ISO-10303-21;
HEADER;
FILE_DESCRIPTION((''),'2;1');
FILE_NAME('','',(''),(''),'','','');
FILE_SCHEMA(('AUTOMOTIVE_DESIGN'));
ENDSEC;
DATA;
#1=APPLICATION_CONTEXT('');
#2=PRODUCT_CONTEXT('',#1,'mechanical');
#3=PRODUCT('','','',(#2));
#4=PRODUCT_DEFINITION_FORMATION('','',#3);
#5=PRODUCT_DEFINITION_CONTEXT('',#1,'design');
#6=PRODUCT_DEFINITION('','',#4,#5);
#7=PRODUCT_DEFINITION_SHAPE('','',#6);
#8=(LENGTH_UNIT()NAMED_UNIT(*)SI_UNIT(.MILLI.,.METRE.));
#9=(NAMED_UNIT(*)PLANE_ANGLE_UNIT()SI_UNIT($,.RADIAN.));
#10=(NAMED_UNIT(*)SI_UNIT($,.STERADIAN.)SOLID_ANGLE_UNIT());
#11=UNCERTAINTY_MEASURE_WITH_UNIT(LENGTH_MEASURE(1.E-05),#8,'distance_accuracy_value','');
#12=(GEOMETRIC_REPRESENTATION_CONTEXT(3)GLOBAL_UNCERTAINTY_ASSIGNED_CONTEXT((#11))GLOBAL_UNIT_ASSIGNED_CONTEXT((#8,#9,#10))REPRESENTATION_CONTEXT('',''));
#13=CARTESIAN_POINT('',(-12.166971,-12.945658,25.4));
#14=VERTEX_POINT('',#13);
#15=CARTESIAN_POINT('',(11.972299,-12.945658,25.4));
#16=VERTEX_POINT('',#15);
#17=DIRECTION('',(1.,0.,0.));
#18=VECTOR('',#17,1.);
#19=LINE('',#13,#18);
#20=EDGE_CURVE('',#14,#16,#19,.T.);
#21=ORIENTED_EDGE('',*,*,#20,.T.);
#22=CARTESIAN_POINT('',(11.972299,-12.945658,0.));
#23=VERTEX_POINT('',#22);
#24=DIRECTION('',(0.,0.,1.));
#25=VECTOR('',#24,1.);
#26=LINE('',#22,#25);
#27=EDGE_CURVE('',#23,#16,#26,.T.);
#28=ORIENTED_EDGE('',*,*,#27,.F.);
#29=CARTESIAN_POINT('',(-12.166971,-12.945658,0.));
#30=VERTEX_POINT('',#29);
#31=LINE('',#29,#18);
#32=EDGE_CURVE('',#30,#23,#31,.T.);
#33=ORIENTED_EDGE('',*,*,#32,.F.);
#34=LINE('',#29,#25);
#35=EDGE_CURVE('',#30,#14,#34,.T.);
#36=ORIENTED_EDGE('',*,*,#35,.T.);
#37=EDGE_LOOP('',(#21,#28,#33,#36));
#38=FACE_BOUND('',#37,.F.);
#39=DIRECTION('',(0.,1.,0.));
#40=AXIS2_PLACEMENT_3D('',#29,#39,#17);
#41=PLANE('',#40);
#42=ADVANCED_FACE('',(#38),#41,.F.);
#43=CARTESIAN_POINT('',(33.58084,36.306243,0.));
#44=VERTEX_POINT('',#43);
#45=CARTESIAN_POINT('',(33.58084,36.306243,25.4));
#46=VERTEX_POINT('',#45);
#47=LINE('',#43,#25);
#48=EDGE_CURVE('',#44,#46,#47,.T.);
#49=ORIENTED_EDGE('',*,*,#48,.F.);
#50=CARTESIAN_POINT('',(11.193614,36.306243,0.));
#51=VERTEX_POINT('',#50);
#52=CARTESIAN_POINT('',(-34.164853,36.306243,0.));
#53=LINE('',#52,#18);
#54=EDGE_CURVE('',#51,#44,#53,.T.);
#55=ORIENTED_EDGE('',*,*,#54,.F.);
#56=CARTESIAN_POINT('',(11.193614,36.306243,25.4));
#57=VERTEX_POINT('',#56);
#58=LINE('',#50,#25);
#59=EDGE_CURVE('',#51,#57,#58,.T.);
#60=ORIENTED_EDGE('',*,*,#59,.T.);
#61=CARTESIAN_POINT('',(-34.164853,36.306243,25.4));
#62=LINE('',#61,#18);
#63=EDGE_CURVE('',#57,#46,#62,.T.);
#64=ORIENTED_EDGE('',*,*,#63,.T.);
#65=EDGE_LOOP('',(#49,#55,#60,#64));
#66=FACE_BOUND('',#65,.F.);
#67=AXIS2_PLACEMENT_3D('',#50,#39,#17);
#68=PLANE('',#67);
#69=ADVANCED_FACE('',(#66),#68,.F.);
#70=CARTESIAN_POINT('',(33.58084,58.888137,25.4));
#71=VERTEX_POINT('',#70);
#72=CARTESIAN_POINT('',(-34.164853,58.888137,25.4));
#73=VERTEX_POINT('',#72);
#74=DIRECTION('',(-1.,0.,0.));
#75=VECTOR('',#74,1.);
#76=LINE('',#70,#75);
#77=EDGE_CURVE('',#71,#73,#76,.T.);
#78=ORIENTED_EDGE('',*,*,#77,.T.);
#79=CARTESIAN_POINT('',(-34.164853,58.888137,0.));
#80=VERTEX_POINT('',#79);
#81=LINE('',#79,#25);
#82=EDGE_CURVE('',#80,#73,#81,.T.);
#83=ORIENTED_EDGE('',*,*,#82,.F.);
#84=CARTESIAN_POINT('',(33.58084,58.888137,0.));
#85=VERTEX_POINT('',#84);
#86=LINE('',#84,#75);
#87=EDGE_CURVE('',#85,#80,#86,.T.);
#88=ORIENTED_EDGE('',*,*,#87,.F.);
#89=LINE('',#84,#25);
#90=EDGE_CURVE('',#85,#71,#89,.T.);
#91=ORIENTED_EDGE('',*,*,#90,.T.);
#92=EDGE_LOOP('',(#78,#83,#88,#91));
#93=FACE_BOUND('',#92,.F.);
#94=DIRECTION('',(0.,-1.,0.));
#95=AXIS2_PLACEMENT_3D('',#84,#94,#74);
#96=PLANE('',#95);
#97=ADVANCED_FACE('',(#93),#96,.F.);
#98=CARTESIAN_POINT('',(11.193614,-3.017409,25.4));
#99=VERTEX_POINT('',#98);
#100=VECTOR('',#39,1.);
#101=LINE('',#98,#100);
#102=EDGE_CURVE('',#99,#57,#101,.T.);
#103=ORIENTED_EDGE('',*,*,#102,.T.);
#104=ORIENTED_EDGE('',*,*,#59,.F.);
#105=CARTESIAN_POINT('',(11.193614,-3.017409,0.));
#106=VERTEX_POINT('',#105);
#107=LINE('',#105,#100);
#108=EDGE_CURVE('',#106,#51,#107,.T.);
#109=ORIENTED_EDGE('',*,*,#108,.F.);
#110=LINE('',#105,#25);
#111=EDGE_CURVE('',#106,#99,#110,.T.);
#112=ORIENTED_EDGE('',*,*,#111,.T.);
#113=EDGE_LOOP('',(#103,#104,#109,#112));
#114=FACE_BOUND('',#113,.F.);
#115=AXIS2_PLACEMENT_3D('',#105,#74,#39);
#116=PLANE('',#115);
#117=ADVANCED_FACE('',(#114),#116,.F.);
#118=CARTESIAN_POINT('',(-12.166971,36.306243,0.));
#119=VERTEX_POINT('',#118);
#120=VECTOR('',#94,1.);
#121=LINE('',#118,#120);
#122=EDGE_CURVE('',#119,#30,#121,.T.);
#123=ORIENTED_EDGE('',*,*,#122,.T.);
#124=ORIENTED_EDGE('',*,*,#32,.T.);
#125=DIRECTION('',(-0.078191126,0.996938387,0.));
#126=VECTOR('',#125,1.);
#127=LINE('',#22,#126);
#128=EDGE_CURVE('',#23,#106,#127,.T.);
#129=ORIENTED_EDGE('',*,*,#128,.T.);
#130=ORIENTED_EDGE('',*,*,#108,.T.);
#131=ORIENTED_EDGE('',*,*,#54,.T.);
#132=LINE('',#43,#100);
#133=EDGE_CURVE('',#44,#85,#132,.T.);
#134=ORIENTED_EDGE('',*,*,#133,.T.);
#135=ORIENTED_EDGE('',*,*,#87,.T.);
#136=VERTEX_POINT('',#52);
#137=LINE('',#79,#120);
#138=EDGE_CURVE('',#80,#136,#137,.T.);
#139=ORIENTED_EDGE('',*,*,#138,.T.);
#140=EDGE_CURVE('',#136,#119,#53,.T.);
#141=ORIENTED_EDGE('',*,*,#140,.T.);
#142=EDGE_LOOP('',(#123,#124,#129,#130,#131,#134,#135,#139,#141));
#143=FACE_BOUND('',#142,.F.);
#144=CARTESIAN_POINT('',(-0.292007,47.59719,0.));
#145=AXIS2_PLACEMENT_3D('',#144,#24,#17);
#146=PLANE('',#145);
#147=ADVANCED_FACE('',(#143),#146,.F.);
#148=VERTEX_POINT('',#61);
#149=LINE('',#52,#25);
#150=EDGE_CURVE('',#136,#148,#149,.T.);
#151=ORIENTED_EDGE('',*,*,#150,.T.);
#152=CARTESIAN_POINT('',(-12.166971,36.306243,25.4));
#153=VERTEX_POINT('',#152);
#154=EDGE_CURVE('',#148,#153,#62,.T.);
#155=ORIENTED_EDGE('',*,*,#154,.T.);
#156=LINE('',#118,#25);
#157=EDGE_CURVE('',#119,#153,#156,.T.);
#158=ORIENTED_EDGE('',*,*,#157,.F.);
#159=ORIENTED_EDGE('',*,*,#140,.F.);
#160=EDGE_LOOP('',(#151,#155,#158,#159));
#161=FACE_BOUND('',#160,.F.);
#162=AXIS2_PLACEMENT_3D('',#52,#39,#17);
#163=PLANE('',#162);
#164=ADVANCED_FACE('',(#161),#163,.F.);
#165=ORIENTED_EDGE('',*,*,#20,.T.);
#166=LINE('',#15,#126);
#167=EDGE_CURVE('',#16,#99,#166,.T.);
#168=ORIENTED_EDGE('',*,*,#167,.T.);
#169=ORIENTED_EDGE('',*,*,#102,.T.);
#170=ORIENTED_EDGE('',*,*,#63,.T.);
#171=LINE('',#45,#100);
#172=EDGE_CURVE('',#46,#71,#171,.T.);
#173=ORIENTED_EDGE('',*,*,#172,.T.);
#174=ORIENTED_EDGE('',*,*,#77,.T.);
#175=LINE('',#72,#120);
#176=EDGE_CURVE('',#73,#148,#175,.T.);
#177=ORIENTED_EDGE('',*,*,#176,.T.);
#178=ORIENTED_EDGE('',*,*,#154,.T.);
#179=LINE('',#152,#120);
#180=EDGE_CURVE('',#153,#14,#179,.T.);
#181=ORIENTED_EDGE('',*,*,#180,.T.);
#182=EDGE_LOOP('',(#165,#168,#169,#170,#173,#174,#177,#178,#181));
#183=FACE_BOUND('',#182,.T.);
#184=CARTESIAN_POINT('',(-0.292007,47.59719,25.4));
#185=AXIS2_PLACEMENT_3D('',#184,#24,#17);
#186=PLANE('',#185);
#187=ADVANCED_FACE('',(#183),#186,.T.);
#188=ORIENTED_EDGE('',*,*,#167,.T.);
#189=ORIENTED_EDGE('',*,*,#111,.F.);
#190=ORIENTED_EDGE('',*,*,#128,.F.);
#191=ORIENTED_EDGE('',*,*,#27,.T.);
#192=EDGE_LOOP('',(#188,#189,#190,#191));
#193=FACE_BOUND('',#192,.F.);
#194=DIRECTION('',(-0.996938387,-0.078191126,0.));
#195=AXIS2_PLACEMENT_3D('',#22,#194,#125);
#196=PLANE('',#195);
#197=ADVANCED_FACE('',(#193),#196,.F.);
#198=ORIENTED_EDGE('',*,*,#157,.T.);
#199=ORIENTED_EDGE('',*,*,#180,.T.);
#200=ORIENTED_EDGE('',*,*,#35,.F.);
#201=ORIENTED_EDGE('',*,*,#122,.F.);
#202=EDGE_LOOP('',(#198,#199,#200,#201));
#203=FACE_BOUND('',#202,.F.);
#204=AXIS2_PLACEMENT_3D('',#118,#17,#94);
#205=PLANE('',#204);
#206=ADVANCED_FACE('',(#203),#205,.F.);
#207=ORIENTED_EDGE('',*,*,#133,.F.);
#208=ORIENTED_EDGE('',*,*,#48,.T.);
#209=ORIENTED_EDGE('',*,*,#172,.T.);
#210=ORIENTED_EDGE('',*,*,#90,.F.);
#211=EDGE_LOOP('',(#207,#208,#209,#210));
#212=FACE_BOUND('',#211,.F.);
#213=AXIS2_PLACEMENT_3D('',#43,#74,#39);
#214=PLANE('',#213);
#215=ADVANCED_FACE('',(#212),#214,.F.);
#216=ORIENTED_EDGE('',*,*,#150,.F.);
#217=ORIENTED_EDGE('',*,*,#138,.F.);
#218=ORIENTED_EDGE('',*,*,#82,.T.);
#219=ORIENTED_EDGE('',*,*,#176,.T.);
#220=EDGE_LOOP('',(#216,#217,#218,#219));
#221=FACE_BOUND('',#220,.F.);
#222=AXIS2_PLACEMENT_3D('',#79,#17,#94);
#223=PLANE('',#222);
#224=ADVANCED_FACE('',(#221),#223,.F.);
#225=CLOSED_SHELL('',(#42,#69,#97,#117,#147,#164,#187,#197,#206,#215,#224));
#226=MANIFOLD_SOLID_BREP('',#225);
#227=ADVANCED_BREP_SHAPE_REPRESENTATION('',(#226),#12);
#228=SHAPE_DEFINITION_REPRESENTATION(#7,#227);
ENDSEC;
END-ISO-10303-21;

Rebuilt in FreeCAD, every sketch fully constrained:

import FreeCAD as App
import Part
import Sketcher
from FreeCAD import Vector


def add_polygon(sketch, points):
    """Adds a closed chain of lines whose ends are joined by coincident constraints."""
    first, n = sketch.GeometryCount, len(points)
    for a, b in zip(points, points[1:] + points[:1]):
        sketch.addGeometry(Part.LineSegment(App.Vector(*a, 0), App.Vector(*b, 0)), False)
    for i in range(n):
        sketch.addConstraint(Sketcher.Constraint("Coincident", first + i, 2, first + (i + 1) % n, 1))

doc = App.newDocument("Part")
params = doc.addObject("Spreadsheet::Sheet", "Params")
for row, (alias, value) in enumerate([
    ("pad1_length", "1 in"),
], start=1):
    params.set(f"A{row}", alias)
    params.set(f"B{row}", "=" + value)
    params.setAlias(f"B{row}", alias)

body = doc.addObject("PartDesign::Body", "Body")

# Sketch on XY plane
sketch1 = body.newObject("Sketcher::SketchObject", "Sketch")
sketch1.AttachmentSupport = (doc.getObject("XY_Plane"), [""])
sketch1.MapMode = "FlatFace"
add_polygon(sketch1, [(34, 59), (-34, 59), (-34, 36), (-12, 36), (-12, -13), (12, -13), (11, -3), (11, 36), (34, 36)])  # lines 0-8
sketch1.addConstraint([
    Sketcher.Constraint("Horizontal", 0),
    Sketcher.Constraint("Vertical", 1),
    Sketcher.Constraint("Horizontal", 2),
    Sketcher.Constraint("Vertical", 3),
    Sketcher.Constraint("Horizontal", 4),
    Sketcher.Constraint("Vertical", 6),
    Sketcher.Constraint("Horizontal", 7),
    Sketcher.Constraint("Vertical", 8),
    Sketcher.Constraint("Horizontal", 2, 2, 6, 2),
    Sketcher.Constraint("DistanceY", 3, 2, 3, 1, 49.251901),
    Sketcher.Constraint("DistanceX", 4, 1, 4, 2, 24.13927),
    Sketcher.Constraint("DistanceX", -1, 1, 4, 2, 11.972299),
    Sketcher.Constraint("Distance", 5, 9.958739),
    Sketcher.Constraint("DistanceX", 0, 2, 0, 1, 67.745693),
    Sketcher.Constraint("DistanceX", 2, 1, 2, 2, 21.997882),
    Sketcher.Constraint("DistanceX", 7, 1, 7, 2, 22.387226),
    Sketcher.Constraint("DistanceY", 1, 2, 1, 1, 22.581894),
    Sketcher.Constraint("DistanceY", 5, 2, -1, 1, 3.017409),
])
pad1 = body.newObject("PartDesign::Pad", "Pad")
pad1.Profile = sketch1
pad1.setExpression("Length", "Params.pad1_length")

doc.recompute()
